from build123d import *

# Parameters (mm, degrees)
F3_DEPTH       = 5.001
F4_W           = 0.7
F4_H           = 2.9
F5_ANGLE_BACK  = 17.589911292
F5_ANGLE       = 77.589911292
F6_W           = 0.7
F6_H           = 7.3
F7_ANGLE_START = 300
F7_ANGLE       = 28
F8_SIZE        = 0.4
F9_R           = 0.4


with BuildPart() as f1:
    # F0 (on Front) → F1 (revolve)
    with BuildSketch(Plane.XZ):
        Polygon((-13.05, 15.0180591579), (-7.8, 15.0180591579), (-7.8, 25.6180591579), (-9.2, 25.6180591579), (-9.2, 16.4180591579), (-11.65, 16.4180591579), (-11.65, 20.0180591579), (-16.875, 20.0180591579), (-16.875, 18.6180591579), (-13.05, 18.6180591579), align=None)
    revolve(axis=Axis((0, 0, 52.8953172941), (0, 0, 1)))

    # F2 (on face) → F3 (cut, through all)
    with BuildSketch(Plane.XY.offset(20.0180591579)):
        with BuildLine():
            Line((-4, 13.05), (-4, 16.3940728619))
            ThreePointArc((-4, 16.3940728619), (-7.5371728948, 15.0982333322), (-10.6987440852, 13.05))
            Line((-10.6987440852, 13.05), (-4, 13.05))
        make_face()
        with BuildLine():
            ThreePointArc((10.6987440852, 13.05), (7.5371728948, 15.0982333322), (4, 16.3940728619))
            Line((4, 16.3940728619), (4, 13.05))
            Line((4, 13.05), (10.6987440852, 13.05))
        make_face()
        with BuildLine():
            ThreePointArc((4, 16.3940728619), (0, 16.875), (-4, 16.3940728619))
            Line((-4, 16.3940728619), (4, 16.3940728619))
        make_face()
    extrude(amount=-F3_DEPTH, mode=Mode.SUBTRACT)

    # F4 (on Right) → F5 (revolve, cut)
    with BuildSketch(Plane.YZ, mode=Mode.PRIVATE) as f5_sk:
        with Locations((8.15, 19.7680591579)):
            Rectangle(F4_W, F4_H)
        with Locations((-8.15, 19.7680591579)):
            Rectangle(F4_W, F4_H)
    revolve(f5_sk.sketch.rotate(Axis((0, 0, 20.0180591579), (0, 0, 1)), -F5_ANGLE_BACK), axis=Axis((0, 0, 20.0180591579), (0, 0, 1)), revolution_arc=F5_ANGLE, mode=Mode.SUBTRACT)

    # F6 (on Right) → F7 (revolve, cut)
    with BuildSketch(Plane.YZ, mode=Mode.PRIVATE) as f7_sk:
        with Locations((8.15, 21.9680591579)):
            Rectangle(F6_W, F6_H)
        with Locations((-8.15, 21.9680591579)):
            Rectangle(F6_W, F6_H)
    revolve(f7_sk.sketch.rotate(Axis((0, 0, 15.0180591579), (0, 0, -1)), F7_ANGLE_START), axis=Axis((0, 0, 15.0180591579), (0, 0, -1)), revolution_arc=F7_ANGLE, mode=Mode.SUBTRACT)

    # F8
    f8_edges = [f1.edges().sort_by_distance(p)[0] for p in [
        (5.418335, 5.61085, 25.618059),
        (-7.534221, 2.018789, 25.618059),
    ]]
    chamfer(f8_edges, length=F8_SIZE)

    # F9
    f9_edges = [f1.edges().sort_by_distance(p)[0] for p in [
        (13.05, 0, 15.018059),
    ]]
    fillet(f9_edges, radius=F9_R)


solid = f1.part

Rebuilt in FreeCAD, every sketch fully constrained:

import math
import FreeCAD as App
import Part
import Sketcher


def edges_at(feature, points):
    """Names of the edges that pass closest to the given points."""
    edges = feature.Shape.Edges
    near = lambda p: min(range(len(edges)), key=lambda i: edges[i].distToShape(Part.Vertex(*p))[0])
    return sorted({f"Edge{near(p) + 1}" for p in points})

doc = App.newDocument("Part")
body = doc.addObject("PartDesign::Body", "Body")

sketch1 = doc.addObject("Sketcher::SketchObject", "Sketch")
body.addObject(sketch1)
sketch1.AttachmentSupport = (doc.XZ_Plane, [""])
sketch1.MapMode = "FlatFace"
sketch1.addGeometry([
    Part.LineSegment(App.Vector(-13.05, 15.018059, 0), App.Vector(-7.8, 15.018059, 0)),
    Part.LineSegment(App.Vector(-7.8, 15.018059, 0), App.Vector(-7.8, 25.618059, 0)),
    Part.LineSegment(App.Vector(-7.8, 25.618059, 0), App.Vector(-9.2, 25.618059, 0)),
    Part.LineSegment(App.Vector(-9.2, 25.618059, 0), App.Vector(-9.2, 16.418059, 0)),
    Part.LineSegment(App.Vector(-9.2, 16.418059, 0), App.Vector(-11.65, 16.418059, 0)),
    Part.LineSegment(App.Vector(-11.65, 16.418059, 0), App.Vector(-11.65, 20.018059, 0)),
    Part.LineSegment(App.Vector(-11.65, 20.018059, 0), App.Vector(-16.875, 20.018059, 0)),
    Part.LineSegment(App.Vector(-16.875, 20.018059, 0), App.Vector(-16.875, 18.618059, 0)),
    Part.LineSegment(App.Vector(-16.875, 18.618059, 0), App.Vector(-13.05, 18.618059, 0)),
    Part.LineSegment(App.Vector(-13.05, 18.618059, 0), App.Vector(-13.05, 15.018059, 0)),
], False)
sketch1.addConstraint([
    Sketcher.Constraint("Coincident", 0, 2, 1, 1),
    Sketcher.Constraint("Coincident", 1, 2, 2, 1),
    Sketcher.Constraint("Coincident", 2, 2, 3, 1),
    Sketcher.Constraint("Coincident", 3, 2, 4, 1),
    Sketcher.Constraint("Coincident", 4, 2, 5, 1),
    Sketcher.Constraint("Coincident", 5, 2, 6, 1),
    Sketcher.Constraint("Coincident", 6, 2, 7, 1),
    Sketcher.Constraint("Coincident", 7, 2, 8, 1),
    Sketcher.Constraint("Coincident", 8, 2, 9, 1),
    Sketcher.Constraint("Coincident", 9, 2, 0, 1),
    Sketcher.Constraint("Horizontal", 0),
    Sketcher.Constraint("Vertical", 1),
    Sketcher.Constraint("Horizontal", 2),
    Sketcher.Constraint("Vertical", 3),
    Sketcher.Constraint("Horizontal", 4),
    Sketcher.Constraint("Vertical", 5),
    Sketcher.Constraint("Horizontal", 6),
    Sketcher.Constraint("Vertical", 7),
    Sketcher.Constraint("Horizontal", 8),
    Sketcher.Constraint("Vertical", 9),
    Sketcher.Constraint("Equal", 2, 7),
    Sketcher.Constraint("Equal", 5, 9),
    Sketcher.Constraint("DistanceX", 2, 2, 2, 1, 1.4),
    Sketcher.Constraint("DistanceY", 1, 1, 1, 2, 10.6),
    Sketcher.Constraint("DistanceY", 5, 1, 5, 2, 3.6),
    Sketcher.Constraint("DistanceX", 0, 1, 0, 2, 5.25),
    Sketcher.Constraint("DistanceX", 4, 2, 4, 1, 2.45),
    Sketcher.Constraint("DistanceX", 0, 2, -1, 1, 7.8),
    Sketcher.Constraint("DistanceX", 6, 2, 6, 1, 5.225),
    Sketcher.Constraint("DistanceY", -1, 1, 0, 2, 15.018059),
])
revolution = doc.addObject("PartDesign::Revolution", "Revolution")
body.addObject(revolution)
revolution.Profile = sketch1
revolution.ReferenceAxis = (sketch1, ["V_Axis"])
revolution.Angle = 360

sketch2 = doc.addObject("Sketcher::SketchObject", "Sketch001")
body.addObject(sketch2)
sketch2.AttachmentSupport = (doc.XY_Plane, [""])
sketch2.MapMode = "FlatFace"
sketch2.AttachmentOffset = App.Placement(App.Vector(0, 0, 20.018059), App.Rotation())
sketch2.addGeometry([
    Part.LineSegment(App.Vector(-4, 13.05, 0), App.Vector(-4, 16.394073, 0)),
    Part.ArcOfCircle(Part.Circle(App.Vector(0, 0, 0), App.Vector(0, 0, 1), 16.875), math.radians(103.71173), math.radians(129.34583)),
    Part.LineSegment(App.Vector(-10.698744, 13.05, 0), App.Vector(-4, 13.05, 0)),
    Part.ArcOfCircle(Part.Circle(App.Vector(0, 0, 0), App.Vector(0, 0, 1), 16.875), math.radians(50.65417), math.radians(76.28827)),
    Part.LineSegment(App.Vector(4, 16.394073, 0), App.Vector(4, 13.05, 0)),
    Part.LineSegment(App.Vector(4, 13.05, 0), App.Vector(10.698744, 13.05, 0)),
    Part.ArcOfCircle(Part.Circle(App.Vector(0, 0, 0), App.Vector(0, 0, 1), 16.875), math.radians(76.28827), math.radians(103.71173)),
    Part.LineSegment(App.Vector(-4, 16.394073, 0), App.Vector(4, 16.394073, 0)),
], False)
sketch2.addConstraint([
    Sketcher.Constraint("Coincident", 0, 2, 1, 1),
    Sketcher.Constraint("Coincident", 1, 2, 2, 1),
    Sketcher.Constraint("Coincident", 2, 2, 0, 1),
    Sketcher.Constraint("Coincident", 3, 2, 4, 1),
    Sketcher.Constraint("Coincident", 4, 2, 5, 1),
    Sketcher.Constraint("Coincident", 5, 2, 3, 1),
    Sketcher.Constraint("Coincident", 6, 1, 7, 2),
    Sketcher.Constraint("Coincident", 7, 1, 6, 2),
    Sketcher.Constraint("Vertical", 0),
    Sketcher.Constraint("Horizontal", 2),
    Sketcher.Constraint("Vertical", 4),
    Sketcher.Constraint("Horizontal", 5),
    Sketcher.Constraint("Horizontal", 7),
    Sketcher.Constraint("Coincident", 1, 3, -1, 1),
    Sketcher.Constraint("Coincident", 3, 3, -1, 1),
    Sketcher.Constraint("Coincident", 6, 3, -1, 1),
    Sketcher.Constraint("Coincident", 6, 1, 3, 2),
    Sketcher.Constraint("Coincident", 7, 1, 0, 2),
    Sketcher.Constraint("Horizontal", 2, 2, 4, 2),
    Sketcher.Constraint("DistanceX", 7, 1, 7, 2, 8.0),
    Sketcher.Constraint("Radius", 1, 16.875),
    Sketcher.Constraint("DistanceY", -1, 1, 1, 2, 13.05),
])
pocket1 = doc.addObject("PartDesign::Pocket", "Pocket")
body.addObject(pocket1)
pocket1.Profile = sketch2
pocket1.Type = "ThroughAll"

sketch3 = doc.addObject("Sketcher::SketchObject", "Sketch002")
body.addObject(sketch3)
sketch3.Placement = App.Placement(App.Vector(0, 0, 0), App.Rotation(App.Vector(0.302202047, 0.953243895, 0), App.Vector(0, 0, 1.000000001), App.Vector(0.953243895, -0.302202047, 0), "ZXY"))
sketch3.addGeometry([
    Part.LineSegment(App.Vector(7.8, 21.218059, 0), App.Vector(7.8, 18.318059, 0)),
    Part.LineSegment(App.Vector(7.8, 18.318059, 0), App.Vector(8.5, 18.318059, 0)),
    Part.LineSegment(App.Vector(8.5, 18.318059, 0), App.Vector(8.5, 21.218059, 0)),
    Part.LineSegment(App.Vector(8.5, 21.218059, 0), App.Vector(7.8, 21.218059, 0)),
    Part.LineSegment(App.Vector(-8.5, 21.218059, 0), App.Vector(-8.5, 18.318059, 0)),
    Part.LineSegment(App.Vector(-8.5, 18.318059, 0), App.Vector(-7.8, 18.318059, 0)),
    Part.LineSegment(App.Vector(-7.8, 18.318059, 0), App.Vector(-7.8, 21.218059, 0)),
    Part.LineSegment(App.Vector(-7.8, 21.218059, 0), App.Vector(-8.5, 21.218059, 0)),
], False)
sketch3.addConstraint([
    Sketcher.Constraint("Coincident", 0, 2, 1, 1),
    Sketcher.Constraint("Coincident", 1, 2, 2, 1),
    Sketcher.Constraint("Coincident", 2, 2, 3, 1),
    Sketcher.Constraint("Coincident", 3, 2, 0, 1),
    Sketcher.Constraint("Coincident", 4, 2, 5, 1),
    Sketcher.Constraint("Coincident", 5, 2, 6, 1),
    Sketcher.Constraint("Coincident", 6, 2, 7, 1),
    Sketcher.Constraint("Coincident", 7, 2, 4, 1),
    Sketcher.Constraint("Vertical", 0),
    Sketcher.Constraint("Horizontal", 1),
    Sketcher.Constraint("Vertical", 2),
    Sketcher.Constraint("Horizontal", 3),
    Sketcher.Constraint("Vertical", 4),
    Sketcher.Constraint("Horizontal", 5),
    Sketcher.Constraint("Vertical", 6),
    Sketcher.Constraint("Horizontal", 7),
    Sketcher.Constraint("Symmetric", 1, 2, 4, 2, -2),
    Sketcher.Constraint("Symmetric", 3, 2, 6, 2, -2),
    Sketcher.Constraint("DistanceX", 1, 1, 1, 2, 0.7),
    Sketcher.Constraint("DistanceY", 0, 2, 0, 1, 2.9),
    Sketcher.Constraint("DistanceX", 4, 2, 1, 2, 17.0),
    Sketcher.Constraint("DistanceY", -1, 1, 0, 2, 18.318059),
])
groove = doc.addObject("PartDesign::Groove", "Groove")
body.addObject(groove)
groove.Profile = sketch3
groove.ReferenceAxis = (sketch3, ["V_Axis"])
groove.Angle = 77.589911

sketch4 = doc.addObject("Sketcher::SketchObject", "Sketch003")
body.addObject(sketch4)
sketch4.Placement = App.Placement(App.Vector(0, 0, 0), App.Rotation(App.Vector(-0.866025404, 0.5, 0), App.Vector(0, 0, 1), App.Vector(0.5, 0.866025404, 0), "ZXY"))
sketch4.addGeometry([
    Part.LineSegment(App.Vector(7.8, 25.618059, 0), App.Vector(7.8, 18.318059, 0)),
    Part.LineSegment(App.Vector(7.8, 18.318059, 0), App.Vector(8.5, 18.318059, 0)),
    Part.LineSegment(App.Vector(8.5, 18.318059, 0), App.Vector(8.5, 25.618059, 0)),
    Part.LineSegment(App.Vector(8.5, 25.618059, 0), App.Vector(7.8, 25.618059, 0)),
    Part.LineSegment(App.Vector(-8.5, 25.618059, 0), App.Vector(-8.5, 18.318059, 0)),
    Part.LineSegment(App.Vector(-8.5, 18.318059, 0), App.Vector(-7.8, 18.318059, 0)),
    Part.LineSegment(App.Vector(-7.8, 18.318059, 0), App.Vector(-7.8, 25.618059, 0)),
    Part.LineSegment(App.Vector(-7.8, 25.618059, 0), App.Vector(-8.5, 25.618059, 0)),
], False)
sketch4.addConstraint([
    Sketcher.Constraint("Coincident", 0, 2, 1, 1),
    Sketcher.Constraint("Coincident", 1, 2, 2, 1),
    Sketcher.Constraint("Coincident", 2, 2, 3, 1),
    Sketcher.Constraint("Coincident", 3, 2, 0, 1),
    Sketcher.Constraint("Coincident", 4, 2, 5, 1),
    Sketcher.Constraint("Coincident", 5, 2, 6, 1),
    Sketcher.Constraint("Coincident", 6, 2, 7, 1),
    Sketcher.Constraint("Coincident", 7, 2, 4, 1),
    Sketcher.Constraint("Vertical", 0),
    Sketcher.Constraint("Horizontal", 1),
    Sketcher.Constraint("Vertical", 2),
    Sketcher.Constraint("Horizontal", 3),
    Sketcher.Constraint("Vertical", 4),
    Sketcher.Constraint("Horizontal", 5),
    Sketcher.Constraint("Vertical", 6),
    Sketcher.Constraint("Horizontal", 7),
    Sketcher.Constraint("Symmetric", 1, 2, 4, 2, -2),
    Sketcher.Constraint("Symmetric", 3, 2, 6, 2, -2),
    Sketcher.Constraint("DistanceX", 1, 1, 1, 2, 0.7),
    Sketcher.Constraint("DistanceY", 0, 2, 0, 1, 7.3),
    Sketcher.Constraint("DistanceX", 4, 2, 1, 2, 17.0),
    Sketcher.Constraint("DistanceY", -1, 1, 0, 2, 18.318059),
])
groove2 = doc.addObject("PartDesign::Groove", "Groove001")
body.addObject(groove2)
groove2.Profile = sketch4
groove2.ReferenceAxis = (sketch4, ["V_Axis"])
groove2.Angle = 28
groove2.Reversed = True
doc.recompute()

chamfer = doc.addObject("PartDesign::Chamfer", "Chamfer")
body.addObject(chamfer)
chamfer.Base = (groove2, edges_at(groove2, [(5.418, 5.611, 25.618), (-7.534, 2.019, 25.618)]))
chamfer.Size = 0.4
doc.recompute()

fillet = doc.addObject("PartDesign::Fillet", "Fillet")
body.addObject(fillet)
fillet.Base = (chamfer, edges_at(chamfer, [(13.05, 0, 15.018)]))
fillet.Radius = 0.4

doc.recompute()
